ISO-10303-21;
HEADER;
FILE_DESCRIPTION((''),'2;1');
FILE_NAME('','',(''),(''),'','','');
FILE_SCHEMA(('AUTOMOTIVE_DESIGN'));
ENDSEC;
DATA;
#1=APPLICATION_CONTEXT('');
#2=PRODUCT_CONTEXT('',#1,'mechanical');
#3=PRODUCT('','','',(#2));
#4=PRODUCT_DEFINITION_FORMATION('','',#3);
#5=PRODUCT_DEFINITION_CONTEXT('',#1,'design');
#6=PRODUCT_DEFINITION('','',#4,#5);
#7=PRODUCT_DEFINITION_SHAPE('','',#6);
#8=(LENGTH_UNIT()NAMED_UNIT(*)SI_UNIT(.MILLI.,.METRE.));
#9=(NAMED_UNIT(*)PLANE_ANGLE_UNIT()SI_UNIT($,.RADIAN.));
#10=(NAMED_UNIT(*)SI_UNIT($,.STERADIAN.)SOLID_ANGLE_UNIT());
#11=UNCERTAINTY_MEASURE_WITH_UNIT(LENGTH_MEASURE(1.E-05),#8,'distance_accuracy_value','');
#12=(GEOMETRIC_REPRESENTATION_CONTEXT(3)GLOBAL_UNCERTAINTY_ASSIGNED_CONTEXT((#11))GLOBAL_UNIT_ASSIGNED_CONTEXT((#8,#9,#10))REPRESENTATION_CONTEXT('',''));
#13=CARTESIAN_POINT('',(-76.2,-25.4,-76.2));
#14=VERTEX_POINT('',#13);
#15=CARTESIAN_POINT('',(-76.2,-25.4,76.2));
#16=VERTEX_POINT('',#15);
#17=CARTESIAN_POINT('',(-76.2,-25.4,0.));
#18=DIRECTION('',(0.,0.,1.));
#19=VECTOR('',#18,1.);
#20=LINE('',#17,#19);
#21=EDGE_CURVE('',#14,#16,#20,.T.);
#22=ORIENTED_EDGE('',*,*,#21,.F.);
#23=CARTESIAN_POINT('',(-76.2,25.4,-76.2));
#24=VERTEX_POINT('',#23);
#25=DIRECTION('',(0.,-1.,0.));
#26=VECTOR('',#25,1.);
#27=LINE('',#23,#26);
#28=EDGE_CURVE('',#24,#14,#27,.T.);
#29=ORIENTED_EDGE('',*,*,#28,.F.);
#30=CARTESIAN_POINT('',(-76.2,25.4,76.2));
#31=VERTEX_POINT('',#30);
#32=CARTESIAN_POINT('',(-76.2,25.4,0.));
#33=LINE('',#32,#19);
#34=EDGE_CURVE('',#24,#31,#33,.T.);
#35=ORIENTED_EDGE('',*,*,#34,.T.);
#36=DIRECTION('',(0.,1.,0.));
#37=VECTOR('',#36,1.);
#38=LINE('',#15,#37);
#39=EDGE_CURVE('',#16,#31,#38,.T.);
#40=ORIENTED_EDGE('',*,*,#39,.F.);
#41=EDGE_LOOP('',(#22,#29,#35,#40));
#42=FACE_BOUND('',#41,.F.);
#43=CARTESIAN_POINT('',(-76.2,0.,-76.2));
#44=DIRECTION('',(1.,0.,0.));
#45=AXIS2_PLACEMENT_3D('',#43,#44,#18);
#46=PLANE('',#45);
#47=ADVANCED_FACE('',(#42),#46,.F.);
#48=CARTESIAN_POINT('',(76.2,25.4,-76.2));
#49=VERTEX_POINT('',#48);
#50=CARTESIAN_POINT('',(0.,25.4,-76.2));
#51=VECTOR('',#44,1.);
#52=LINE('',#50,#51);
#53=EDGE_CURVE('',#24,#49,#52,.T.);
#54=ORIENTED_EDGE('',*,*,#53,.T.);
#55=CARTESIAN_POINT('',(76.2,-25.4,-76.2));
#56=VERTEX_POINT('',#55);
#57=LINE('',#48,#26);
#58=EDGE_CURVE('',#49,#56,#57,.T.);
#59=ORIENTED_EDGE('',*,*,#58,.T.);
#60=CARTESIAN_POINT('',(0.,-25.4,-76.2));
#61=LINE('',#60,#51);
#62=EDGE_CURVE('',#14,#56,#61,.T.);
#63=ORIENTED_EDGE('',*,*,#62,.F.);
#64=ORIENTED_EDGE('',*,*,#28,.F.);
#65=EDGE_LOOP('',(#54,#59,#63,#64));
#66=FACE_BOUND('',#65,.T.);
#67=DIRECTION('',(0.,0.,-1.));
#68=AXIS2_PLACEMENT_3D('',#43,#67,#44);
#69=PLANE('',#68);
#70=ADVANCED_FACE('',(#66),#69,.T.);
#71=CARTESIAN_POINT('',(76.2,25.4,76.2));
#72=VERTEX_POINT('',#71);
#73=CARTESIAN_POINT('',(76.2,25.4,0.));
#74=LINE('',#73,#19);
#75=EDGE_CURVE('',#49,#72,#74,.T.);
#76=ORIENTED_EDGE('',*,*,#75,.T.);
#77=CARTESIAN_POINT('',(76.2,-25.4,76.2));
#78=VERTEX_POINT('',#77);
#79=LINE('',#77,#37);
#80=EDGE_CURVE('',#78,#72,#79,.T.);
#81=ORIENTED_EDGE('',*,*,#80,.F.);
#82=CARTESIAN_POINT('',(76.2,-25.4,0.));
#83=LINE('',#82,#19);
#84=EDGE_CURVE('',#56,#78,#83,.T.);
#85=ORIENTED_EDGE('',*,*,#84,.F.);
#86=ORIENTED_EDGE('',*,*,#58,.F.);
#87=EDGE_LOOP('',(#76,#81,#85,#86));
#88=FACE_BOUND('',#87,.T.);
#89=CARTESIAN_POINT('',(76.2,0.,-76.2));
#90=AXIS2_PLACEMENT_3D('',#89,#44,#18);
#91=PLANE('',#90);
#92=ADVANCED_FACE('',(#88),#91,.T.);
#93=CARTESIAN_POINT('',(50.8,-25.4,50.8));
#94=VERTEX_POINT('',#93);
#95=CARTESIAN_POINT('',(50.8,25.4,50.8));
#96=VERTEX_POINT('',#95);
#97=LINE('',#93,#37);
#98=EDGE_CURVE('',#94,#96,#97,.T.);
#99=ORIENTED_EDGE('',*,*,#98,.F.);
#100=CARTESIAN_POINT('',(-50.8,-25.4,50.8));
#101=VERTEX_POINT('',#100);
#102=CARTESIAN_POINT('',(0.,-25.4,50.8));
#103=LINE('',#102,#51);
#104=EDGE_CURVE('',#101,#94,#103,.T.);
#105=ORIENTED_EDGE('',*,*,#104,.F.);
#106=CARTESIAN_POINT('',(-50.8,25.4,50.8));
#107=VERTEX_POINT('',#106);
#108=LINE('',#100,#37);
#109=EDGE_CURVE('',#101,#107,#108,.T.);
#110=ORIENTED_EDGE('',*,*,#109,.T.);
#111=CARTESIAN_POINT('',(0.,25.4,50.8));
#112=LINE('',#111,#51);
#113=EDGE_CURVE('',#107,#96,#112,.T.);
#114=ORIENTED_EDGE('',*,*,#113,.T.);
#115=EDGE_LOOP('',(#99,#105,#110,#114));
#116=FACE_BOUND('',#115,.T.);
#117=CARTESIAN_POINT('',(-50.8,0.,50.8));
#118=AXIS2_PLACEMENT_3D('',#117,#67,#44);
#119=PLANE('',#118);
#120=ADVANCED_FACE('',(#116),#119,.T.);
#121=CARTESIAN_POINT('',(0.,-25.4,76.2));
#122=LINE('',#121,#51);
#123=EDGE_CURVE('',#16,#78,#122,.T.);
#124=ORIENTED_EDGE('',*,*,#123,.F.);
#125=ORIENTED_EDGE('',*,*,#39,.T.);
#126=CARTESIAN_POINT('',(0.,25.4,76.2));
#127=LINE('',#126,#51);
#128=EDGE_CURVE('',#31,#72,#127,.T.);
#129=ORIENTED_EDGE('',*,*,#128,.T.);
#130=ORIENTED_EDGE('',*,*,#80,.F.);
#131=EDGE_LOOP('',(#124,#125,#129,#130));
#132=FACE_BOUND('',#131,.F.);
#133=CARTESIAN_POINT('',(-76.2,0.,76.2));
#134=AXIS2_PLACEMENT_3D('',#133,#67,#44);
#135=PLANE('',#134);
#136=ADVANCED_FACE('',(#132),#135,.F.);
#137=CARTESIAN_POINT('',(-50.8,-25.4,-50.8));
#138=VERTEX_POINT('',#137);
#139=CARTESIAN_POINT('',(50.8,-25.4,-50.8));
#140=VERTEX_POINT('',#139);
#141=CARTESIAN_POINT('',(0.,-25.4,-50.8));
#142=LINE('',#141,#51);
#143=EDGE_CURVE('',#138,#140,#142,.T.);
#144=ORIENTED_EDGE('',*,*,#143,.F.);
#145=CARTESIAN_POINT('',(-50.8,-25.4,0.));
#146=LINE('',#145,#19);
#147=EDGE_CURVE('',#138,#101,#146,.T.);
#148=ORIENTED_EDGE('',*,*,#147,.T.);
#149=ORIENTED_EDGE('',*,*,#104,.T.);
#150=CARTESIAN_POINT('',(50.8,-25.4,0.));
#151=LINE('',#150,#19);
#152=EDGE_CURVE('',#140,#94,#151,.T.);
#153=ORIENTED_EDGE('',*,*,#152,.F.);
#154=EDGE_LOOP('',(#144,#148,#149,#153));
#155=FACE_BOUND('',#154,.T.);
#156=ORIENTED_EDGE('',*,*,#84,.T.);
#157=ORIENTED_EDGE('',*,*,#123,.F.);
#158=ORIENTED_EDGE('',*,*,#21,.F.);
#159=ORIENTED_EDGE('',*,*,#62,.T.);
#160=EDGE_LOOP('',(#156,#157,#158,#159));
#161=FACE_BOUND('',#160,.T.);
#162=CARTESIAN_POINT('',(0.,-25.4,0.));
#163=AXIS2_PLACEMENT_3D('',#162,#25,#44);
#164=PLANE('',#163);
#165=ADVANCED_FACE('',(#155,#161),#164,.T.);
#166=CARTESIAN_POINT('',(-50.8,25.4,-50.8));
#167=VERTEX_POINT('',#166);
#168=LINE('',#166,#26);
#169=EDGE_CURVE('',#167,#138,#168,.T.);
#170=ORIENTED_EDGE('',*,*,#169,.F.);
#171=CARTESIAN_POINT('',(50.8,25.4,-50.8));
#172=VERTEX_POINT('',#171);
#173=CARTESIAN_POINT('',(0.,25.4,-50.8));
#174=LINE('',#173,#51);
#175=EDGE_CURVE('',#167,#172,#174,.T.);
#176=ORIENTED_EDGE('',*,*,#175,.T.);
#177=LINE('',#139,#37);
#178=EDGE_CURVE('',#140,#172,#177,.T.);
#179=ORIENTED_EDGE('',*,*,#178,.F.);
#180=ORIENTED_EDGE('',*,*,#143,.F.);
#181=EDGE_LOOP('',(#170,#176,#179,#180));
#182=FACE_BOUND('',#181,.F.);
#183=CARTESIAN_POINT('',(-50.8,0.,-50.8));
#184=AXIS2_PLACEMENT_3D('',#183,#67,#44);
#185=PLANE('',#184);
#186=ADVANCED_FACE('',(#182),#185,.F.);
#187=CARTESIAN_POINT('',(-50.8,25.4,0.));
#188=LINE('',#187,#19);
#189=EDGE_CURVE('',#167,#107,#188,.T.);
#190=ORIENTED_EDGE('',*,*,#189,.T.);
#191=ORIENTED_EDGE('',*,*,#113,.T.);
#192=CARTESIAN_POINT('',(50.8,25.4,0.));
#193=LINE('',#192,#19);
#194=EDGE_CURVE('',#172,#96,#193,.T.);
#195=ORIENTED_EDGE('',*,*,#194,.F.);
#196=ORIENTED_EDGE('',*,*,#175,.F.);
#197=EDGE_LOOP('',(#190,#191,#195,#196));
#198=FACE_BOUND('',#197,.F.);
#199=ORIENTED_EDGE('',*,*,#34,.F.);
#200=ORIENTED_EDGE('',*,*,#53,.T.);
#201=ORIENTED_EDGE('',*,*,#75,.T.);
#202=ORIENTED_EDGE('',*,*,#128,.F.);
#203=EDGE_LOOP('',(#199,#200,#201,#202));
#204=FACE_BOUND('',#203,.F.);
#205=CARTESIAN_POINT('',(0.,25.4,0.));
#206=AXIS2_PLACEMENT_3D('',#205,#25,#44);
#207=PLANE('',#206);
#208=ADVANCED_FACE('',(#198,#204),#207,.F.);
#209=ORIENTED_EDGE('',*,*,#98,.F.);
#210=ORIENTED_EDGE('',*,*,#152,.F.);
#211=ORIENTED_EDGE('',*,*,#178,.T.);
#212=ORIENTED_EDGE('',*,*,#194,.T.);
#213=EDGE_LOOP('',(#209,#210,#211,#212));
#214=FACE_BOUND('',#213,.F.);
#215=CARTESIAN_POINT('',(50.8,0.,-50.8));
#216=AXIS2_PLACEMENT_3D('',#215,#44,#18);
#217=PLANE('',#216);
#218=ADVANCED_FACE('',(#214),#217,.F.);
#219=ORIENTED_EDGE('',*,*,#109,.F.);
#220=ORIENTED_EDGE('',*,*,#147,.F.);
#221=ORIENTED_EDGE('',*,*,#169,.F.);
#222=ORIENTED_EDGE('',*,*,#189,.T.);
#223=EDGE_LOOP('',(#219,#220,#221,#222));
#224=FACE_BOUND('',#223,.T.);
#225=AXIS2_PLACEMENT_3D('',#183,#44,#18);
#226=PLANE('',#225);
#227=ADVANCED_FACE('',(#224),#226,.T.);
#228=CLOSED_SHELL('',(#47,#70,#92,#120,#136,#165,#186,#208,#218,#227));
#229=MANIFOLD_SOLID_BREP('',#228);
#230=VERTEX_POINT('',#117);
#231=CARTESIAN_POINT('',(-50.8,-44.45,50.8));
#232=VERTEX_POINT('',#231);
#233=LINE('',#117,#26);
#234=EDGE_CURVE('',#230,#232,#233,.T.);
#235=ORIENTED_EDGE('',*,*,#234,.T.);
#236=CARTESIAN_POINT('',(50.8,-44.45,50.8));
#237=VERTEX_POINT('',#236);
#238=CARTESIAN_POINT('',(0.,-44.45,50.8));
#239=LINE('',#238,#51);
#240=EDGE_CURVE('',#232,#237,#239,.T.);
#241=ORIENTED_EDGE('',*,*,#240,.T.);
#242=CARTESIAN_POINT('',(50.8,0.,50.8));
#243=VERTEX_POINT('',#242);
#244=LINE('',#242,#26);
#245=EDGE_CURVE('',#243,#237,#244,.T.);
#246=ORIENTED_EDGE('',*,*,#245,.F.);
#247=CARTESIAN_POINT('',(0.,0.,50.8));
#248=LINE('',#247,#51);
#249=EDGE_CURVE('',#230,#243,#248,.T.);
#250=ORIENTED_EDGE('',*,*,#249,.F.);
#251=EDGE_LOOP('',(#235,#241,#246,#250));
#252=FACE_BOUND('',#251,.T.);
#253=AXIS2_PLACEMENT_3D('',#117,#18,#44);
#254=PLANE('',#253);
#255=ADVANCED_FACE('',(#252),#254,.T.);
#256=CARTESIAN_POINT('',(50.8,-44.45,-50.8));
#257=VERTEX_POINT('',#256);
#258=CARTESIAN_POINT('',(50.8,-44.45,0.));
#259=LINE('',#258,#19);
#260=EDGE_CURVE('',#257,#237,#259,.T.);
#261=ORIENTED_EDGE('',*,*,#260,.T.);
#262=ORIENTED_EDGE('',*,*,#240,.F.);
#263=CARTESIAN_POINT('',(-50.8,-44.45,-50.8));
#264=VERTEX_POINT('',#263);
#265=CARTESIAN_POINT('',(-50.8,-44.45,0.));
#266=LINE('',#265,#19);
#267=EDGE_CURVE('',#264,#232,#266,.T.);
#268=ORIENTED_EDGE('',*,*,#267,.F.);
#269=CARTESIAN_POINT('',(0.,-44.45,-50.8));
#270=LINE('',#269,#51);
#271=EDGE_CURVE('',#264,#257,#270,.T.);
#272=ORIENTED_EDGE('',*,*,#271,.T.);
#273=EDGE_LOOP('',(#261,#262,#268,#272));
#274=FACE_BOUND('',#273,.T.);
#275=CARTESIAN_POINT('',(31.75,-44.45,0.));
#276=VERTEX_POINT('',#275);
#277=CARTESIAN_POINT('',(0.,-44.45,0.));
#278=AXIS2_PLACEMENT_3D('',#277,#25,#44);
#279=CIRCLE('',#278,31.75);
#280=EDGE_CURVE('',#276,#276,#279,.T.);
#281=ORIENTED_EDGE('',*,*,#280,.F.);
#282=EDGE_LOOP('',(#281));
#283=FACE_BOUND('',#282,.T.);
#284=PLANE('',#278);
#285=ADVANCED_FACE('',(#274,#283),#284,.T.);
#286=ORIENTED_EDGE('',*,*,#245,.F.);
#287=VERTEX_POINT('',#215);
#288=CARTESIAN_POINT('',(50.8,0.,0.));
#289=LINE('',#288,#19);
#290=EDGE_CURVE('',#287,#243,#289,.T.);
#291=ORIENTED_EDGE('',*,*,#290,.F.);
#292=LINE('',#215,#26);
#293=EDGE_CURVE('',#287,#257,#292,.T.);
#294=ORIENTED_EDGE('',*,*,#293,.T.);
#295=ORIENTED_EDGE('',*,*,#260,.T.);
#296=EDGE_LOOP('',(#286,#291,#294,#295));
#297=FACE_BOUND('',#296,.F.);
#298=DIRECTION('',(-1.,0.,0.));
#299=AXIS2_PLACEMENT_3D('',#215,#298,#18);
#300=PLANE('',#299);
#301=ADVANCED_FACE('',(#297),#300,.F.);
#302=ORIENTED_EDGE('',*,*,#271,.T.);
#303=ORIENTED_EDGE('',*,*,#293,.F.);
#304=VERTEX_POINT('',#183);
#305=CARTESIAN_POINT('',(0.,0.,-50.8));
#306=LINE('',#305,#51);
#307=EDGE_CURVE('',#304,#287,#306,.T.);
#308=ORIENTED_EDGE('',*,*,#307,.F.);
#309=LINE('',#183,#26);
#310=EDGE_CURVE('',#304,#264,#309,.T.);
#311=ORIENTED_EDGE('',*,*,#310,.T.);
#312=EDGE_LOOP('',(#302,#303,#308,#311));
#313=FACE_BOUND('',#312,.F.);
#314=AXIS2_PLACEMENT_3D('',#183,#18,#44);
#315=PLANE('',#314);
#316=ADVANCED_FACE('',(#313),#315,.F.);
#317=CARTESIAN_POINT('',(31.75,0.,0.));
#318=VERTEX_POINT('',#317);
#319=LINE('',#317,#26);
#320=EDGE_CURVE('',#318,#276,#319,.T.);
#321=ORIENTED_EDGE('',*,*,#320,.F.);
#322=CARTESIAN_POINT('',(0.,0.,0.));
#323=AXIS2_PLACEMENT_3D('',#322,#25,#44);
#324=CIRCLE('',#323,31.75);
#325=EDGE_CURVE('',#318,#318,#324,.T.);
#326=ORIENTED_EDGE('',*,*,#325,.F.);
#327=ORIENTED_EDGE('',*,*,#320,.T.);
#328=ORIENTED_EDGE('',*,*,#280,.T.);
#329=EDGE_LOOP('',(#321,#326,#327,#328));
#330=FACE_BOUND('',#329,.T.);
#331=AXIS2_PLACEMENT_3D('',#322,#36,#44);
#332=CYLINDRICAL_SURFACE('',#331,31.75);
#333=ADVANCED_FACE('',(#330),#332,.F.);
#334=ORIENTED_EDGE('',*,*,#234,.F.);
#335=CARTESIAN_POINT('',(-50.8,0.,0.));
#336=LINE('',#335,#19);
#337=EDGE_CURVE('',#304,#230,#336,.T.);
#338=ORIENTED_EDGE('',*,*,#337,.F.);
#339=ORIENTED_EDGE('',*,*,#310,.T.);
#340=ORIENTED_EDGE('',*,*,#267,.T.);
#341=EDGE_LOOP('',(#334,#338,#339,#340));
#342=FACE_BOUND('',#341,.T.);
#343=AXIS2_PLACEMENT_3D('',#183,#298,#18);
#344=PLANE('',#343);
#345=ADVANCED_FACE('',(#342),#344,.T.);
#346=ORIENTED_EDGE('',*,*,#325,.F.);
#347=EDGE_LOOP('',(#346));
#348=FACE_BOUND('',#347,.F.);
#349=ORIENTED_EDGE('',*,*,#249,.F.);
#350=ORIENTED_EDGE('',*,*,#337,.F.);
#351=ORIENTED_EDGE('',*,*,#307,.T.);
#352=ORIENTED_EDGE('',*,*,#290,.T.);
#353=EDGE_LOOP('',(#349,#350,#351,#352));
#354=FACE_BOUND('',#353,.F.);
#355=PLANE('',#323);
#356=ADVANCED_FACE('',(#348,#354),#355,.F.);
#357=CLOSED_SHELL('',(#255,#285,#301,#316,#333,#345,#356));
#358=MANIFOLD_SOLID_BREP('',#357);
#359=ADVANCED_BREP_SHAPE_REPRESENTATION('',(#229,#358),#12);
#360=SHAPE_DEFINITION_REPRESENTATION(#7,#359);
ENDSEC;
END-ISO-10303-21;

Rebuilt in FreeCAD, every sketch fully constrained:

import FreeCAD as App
import Part
import Sketcher
from FreeCAD import Vector
Q = App.Units.Quantity

doc = App.newDocument("Part")
params = doc.addObject("Spreadsheet::Sheet", "Params")
for row, (alias, value) in enumerate([
    ("sketch1_diameter", "2.5 in"),
    ("sketch1_width", "4 in"),
    ("pad1_length", "1.75 in"),
    ("sketch2_width", "6 in"),
    ("sketch2_width2", "4 in"),
    ("pad2_length", "2 in"),
], start=1):
    params.set(f"A{row}", alias)
    params.set(f"B{row}", "=" + value)
    params.setAlias(f"B{row}", alias)

body = doc.addObject("PartDesign::Body", "Body")

sketch1 = body.newObject("Sketcher::SketchObject", "Sketch")
sketch1.AttachmentSupport = (doc.getObject("XZ_Plane"), [""])
sketch1.MapMode = "FlatFace"
sketch1.addGeometry([
    Part.LineSegment(Vector(-51, 51, 0), Vector(-51, -51, 0)),
    Part.LineSegment(Vector(-51, -51, 0), Vector(51, -51, 0)),
    Part.LineSegment(Vector(51, -51, 0), Vector(51, 51, 0)),
    Part.LineSegment(Vector(51, 51, 0), Vector(-51, 51, 0)),
    Part.Circle(Vector(0, 0, 0), Vector(0, 0, 1), 32),
], False)
sketch1.addConstraint([
    Sketcher.Constraint("Coincident", 0, 2, 1, 1),
    Sketcher.Constraint("Coincident", 1, 2, 2, 1),
    Sketcher.Constraint("Coincident", 2, 2, 3, 1),
    Sketcher.Constraint("Coincident", 3, 2, 0, 1),
    Sketcher.Constraint("Vertical", 0),
    Sketcher.Constraint("Horizontal", 1),
    Sketcher.Constraint("Vertical", 2),
    Sketcher.Constraint("Horizontal", 3),
    Sketcher.Constraint("Coincident", 4, 3, -1, 1),
    Sketcher.Constraint("Symmetric", 0, 2, 2, 2, -1, 1),
    Sketcher.Constraint("Equal", 3, 0),
    Sketcher.Constraint("Diameter", 4, Q("2.5 in")),
    Sketcher.Constraint("DistanceX", 1, 1, 1, 2, Q("4 in")),
])
sketch1.setExpression("Constraints[11]", "Params.sketch1_diameter")
sketch1.setExpression("Constraints[12]", "Params.sketch1_width")
pad1 = body.newObject("PartDesign::Pad", "Pad")
pad1.Profile = sketch1
pad1.setExpression("Length", "Params.pad1_length")
body2 = doc.addObject("PartDesign::Body", "Body001")

sketch2 = body2.newObject("Sketcher::SketchObject", "Sketch001")
sketch2.AttachmentSupport = (doc.getObject("XZ_Plane001"), [""])
sketch2.MapMode = "FlatFace"
sketch2.addGeometry([
    Part.LineSegment(Vector(-76, 76, 0), Vector(-76, -76, 0)),
    Part.LineSegment(Vector(-76, -76, 0), Vector(76, -76, 0)),
    Part.LineSegment(Vector(76, -76, 0), Vector(76, 76, 0)),
    Part.LineSegment(Vector(76, 76, 0), Vector(-76, 76, 0)),
    Part.LineSegment(Vector(51, -51, 0), Vector(-51, -51, 0)),
    Part.LineSegment(Vector(-51, -51, 0), Vector(-51, 51, 0)),
    Part.LineSegment(Vector(-51, 51, 0), Vector(51, 51, 0)),
    Part.LineSegment(Vector(51, 51, 0), Vector(51, -51, 0)),
], False)
sketch2.addConstraint([
    Sketcher.Constraint("Coincident", 0, 2, 1, 1),
    Sketcher.Constraint("Coincident", 1, 2, 2, 1),
    Sketcher.Constraint("Coincident", 2, 2, 3, 1),
    Sketcher.Constraint("Coincident", 3, 2, 0, 1),
    Sketcher.Constraint("Coincident", 4, 2, 5, 1),
    Sketcher.Constraint("Coincident", 5, 2, 6, 1),
    Sketcher.Constraint("Coincident", 6, 2, 7, 1),
    Sketcher.Constraint("Coincident", 7, 2, 4, 1),
    Sketcher.Constraint("Vertical", 0),
    Sketcher.Constraint("Horizontal", 1),
    Sketcher.Constraint("Vertical", 2),
    Sketcher.Constraint("Horizontal", 3),
    Sketcher.Constraint("Horizontal", 4),
    Sketcher.Constraint("Vertical", 5),
    Sketcher.Constraint("Horizontal", 6),
    Sketcher.Constraint("Vertical", 7),
    Sketcher.Constraint("Symmetric", 0, 2, 2, 2, -1, 1),
    Sketcher.Constraint("Symmetric", 4, 2, 6, 2, -1, 1),
    Sketcher.Constraint("Equal", 3, 0),
    Sketcher.Constraint("Equal", 6, 5),
    Sketcher.Constraint("DistanceX", 1, 1, 1, 2, Q("6 in")),
    Sketcher.Constraint("DistanceX", 4, 2, 4, 1, Q("4 in")),
])
sketch2.setExpression("Constraints[20]", "Params.sketch2_width")
sketch2.setExpression("Constraints[21]", "Params.sketch2_width2")
pad2 = body2.newObject("PartDesign::Pad", "Pad001")
pad2.Profile = sketch2
pad2.setExpression("Length", "Params.pad2_length")
pad2.Midplane = True

doc.recompute()
